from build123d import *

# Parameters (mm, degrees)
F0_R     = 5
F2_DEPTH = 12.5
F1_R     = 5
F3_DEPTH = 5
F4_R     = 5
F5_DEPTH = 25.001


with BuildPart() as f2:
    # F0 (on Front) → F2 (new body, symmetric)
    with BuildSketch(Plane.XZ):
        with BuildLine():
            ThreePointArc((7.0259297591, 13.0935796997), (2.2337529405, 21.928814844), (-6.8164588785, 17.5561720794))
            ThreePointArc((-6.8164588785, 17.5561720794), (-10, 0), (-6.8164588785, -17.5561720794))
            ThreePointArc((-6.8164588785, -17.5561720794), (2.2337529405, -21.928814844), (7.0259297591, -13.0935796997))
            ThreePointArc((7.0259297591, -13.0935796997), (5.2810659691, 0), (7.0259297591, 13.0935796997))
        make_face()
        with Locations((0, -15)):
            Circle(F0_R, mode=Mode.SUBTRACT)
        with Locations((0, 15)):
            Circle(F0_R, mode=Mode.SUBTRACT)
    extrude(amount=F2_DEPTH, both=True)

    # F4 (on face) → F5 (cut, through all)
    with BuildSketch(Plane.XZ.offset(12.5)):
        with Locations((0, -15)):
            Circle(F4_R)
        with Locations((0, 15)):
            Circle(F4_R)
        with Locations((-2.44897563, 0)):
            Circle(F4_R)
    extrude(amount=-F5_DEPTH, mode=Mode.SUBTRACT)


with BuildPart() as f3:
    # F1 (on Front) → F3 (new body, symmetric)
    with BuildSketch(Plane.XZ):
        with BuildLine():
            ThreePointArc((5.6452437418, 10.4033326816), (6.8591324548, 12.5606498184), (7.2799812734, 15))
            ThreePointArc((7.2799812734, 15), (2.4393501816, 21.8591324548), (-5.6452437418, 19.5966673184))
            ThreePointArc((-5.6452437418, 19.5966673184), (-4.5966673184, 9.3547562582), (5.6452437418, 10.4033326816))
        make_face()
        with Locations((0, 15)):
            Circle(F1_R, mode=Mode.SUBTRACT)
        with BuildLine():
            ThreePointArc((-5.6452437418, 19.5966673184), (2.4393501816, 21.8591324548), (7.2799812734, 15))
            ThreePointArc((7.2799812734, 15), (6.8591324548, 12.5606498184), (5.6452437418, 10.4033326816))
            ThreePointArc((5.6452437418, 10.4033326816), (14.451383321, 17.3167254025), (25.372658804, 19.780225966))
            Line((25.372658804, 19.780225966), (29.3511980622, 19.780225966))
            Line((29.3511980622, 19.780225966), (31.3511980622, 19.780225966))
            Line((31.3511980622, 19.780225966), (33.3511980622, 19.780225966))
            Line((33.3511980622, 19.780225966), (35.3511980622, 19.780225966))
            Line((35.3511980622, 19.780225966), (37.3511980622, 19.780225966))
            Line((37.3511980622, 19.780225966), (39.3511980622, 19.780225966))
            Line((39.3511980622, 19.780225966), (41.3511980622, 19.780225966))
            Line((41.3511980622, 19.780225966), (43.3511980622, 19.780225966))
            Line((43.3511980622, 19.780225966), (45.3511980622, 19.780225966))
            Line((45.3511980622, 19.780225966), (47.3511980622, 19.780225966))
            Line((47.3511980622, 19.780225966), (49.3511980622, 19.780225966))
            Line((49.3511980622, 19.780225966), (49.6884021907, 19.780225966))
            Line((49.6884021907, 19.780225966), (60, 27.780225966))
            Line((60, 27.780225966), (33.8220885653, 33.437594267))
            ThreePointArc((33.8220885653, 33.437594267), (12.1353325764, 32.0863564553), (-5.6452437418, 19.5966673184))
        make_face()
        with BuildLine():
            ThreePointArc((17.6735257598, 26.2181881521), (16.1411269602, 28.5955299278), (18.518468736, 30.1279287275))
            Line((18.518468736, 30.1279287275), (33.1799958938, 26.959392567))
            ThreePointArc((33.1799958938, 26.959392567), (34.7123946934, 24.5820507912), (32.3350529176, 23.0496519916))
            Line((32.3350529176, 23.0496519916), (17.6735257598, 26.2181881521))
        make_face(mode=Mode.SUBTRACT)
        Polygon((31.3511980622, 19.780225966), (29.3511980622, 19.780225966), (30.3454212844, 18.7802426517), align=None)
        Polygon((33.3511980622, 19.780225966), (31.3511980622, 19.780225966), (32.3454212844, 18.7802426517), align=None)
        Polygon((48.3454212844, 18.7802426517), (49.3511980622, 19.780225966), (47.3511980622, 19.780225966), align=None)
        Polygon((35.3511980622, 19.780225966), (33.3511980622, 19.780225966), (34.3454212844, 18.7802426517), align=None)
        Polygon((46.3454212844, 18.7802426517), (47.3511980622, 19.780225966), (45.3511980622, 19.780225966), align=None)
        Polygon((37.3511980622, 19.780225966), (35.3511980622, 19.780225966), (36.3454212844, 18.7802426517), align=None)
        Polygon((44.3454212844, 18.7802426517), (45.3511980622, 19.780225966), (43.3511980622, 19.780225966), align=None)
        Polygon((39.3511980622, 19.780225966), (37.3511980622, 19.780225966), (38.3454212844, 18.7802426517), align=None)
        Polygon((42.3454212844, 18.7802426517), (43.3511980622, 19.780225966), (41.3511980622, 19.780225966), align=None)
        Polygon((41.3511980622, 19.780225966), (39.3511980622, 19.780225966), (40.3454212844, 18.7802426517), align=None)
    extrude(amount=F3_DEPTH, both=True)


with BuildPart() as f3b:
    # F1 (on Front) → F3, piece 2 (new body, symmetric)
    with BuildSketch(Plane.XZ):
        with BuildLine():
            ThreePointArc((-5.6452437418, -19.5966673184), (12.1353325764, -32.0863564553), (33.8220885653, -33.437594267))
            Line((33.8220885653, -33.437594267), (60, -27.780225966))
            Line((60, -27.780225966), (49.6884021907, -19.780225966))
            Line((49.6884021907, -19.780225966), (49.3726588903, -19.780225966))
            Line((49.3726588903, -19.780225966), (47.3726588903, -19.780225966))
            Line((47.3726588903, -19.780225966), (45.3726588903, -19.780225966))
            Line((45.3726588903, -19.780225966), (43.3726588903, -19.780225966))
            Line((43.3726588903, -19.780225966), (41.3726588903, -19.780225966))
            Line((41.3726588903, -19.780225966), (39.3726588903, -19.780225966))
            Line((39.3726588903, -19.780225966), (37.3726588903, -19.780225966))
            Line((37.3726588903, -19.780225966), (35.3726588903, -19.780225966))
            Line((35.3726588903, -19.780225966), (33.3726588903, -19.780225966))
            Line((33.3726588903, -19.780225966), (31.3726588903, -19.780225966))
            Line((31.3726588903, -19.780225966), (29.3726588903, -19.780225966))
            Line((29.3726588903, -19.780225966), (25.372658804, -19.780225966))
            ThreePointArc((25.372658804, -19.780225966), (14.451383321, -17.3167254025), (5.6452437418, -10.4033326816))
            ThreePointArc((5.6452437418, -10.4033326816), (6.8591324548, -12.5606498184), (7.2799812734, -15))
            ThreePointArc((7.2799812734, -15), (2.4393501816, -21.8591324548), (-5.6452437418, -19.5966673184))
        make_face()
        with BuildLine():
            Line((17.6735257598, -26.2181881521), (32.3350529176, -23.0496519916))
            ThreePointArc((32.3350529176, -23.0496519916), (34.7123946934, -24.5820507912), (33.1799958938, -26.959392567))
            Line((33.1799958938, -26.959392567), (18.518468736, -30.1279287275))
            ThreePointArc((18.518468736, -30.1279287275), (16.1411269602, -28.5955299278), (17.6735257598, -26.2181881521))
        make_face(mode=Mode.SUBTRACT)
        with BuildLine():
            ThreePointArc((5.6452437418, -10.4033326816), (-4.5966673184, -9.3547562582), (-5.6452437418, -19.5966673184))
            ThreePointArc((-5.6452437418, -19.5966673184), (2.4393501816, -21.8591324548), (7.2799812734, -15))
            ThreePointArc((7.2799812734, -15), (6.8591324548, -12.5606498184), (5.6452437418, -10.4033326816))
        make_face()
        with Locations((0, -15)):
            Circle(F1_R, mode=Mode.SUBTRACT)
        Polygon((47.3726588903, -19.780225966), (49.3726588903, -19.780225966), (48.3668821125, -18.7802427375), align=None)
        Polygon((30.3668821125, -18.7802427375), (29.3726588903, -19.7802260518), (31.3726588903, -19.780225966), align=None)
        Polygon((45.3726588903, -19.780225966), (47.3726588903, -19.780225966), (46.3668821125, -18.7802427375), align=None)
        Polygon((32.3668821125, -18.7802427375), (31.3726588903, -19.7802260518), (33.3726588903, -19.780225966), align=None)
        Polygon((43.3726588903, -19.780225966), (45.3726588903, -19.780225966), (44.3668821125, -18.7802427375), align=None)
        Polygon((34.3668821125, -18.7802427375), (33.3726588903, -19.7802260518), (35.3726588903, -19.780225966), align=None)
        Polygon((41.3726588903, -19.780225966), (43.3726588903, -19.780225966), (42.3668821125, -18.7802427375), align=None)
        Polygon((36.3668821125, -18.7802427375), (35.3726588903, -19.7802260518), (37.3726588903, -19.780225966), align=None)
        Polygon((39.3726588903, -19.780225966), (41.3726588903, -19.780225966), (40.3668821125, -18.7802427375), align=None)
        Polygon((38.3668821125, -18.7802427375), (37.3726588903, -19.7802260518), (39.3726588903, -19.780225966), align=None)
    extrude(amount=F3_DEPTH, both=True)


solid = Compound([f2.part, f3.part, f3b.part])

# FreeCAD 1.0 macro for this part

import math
import FreeCAD as App
import Part
import Sketcher

V = App.Vector
Q = App.Units.Quantity

doc = App.newDocument("Part")
params = doc.addObject("Spreadsheet::Sheet", "Params")
for row, (alias, value) in enumerate([
    ("sketch1_diameter", "10 mm"),
    ("sketch1_radius", "50 mm"),
    ("pad1_length", "25 mm"),
    ("sketch2_diameter", "10 mm"),
    ("sketch3_diameter", "10 mm"),
    ("sketch3_radius", "40 mm"),
    ("sketch3_radius2", "2 mm"),
    ("sketch3_length", "15 mm"),
    ("pad2_length", "10 mm"),
    ("sketch4_diameter", "10 mm"),
    ("sketch4_radius", "40 mm"),
    ("sketch4_radius2", "2 mm"),
    ("sketch4_width", "4 mm"),
    ("sketch4_length", "15 mm"),
    ("pad3_length", "10 mm"),
], start=1):
    params.set(f"A{row}", alias)
    params.set(f"B{row}", "=" + value)
    params.setAlias(f"B{row}", alias)

body = doc.addObject("PartDesign::Body", "Body")

sketch1 = body.newObject("Sketcher::SketchObject", "Sketch")
sketch1.AttachmentSupport = (doc.getObject("XZ_Plane"), [""])
sketch1.MapMode = "FlatFace"
sketch1.addGeometry([
    Part.ArcOfCircle(Part.Circle(V(0, 15, 0), V(0, 0, 1), 7), math.radians(-15), math.radians(159)),
    Part.ArcOfCircle(Part.Circle(V(40, 0, 0), V(0, 0, 1), 50), math.radians(159), math.radians(201)),
    Part.ArcOfCircle(Part.Circle(V(0, -15, 0), V(0, 0, 1), 7), math.radians(-159), math.radians(15)),
    Part.ArcOfCircle(Part.Circle(V(55, 0, 0), V(0, 0, 1), 50), math.radians(165), math.radians(195)),
    Part.Circle(V(0, -15, 0), V(0, 0, 1), 5),
    Part.Circle(V(0, 15, 0), V(0, 0, 1), 5),
], False)
sketch1.addConstraint([
    Sketcher.Constraint("Tangent", 0, 2, 1, 1),
    Sketcher.Constraint("Tangent", 1, 2, 2, 1),
    Sketcher.Constraint("Tangent", 2, 2, 3, 2),
    Sketcher.Constraint("Tangent", 3, 1, 0, 1),
    Sketcher.Constraint("Coincident", 4, 3, 2, 3),
    Sketcher.Constraint("Coincident", 5, 3, 0, 3),
    Sketcher.Constraint("Equal", 0, 2),
    Sketcher.Constraint("Equal", 1, 3),
    Sketcher.Constraint("Equal", 4, 5),
    Sketcher.Constraint("Symmetric", 0, 3, 2, 3, -1, 1),
    Sketcher.Constraint("PointOnObject", 0, 3, -2),
    Sketcher.Constraint("Diameter", 4, Q("10 mm")),
    Sketcher.Constraint("Radius", 1, Q("50 mm")),
    Sketcher.Constraint("DistanceY", -1, 1, 0, 3, Q("15 mm")),
    Sketcher.Constraint("DistanceX", -1, 1, 1, 3, Q("40 mm")),
])
sketch1.setExpression("Constraints[11]", "Params.sketch1_diameter")
sketch1.setExpression("Constraints[12]", "Params.sketch1_radius")
pad1 = body.newObject("PartDesign::Pad", "Pad")
pad1.Profile = sketch1
pad1.setExpression("Length", "Params.pad1_length")
pad1.Midplane = True

sketch2 = body.newObject("Sketcher::SketchObject", "Sketch001")
sketch2.AttachmentSupport = (doc.getObject("XZ_Plane"), [""])
sketch2.MapMode = "FlatFace"
sketch2.AttachmentOffset = App.Placement(V(0, 0, 12.5), App.Rotation())
sketch2.addGeometry([
    Part.Circle(V(0, -15, 0), V(0, 0, 1), 5),
    Part.Circle(V(0, 15, 0), V(0, 0, 1), 5),
    Part.Circle(V(-2, 0, 0), V(0, 0, 1), 5),
], False)
sketch2.addConstraint([
    Sketcher.Constraint("Equal", 0, 1),
    Sketcher.Constraint("Equal", 1, 2),
    Sketcher.Constraint("Symmetric", 0, 3, 1, 3, -1, 1),
    Sketcher.Constraint("PointOnObject", 0, 3, -2),
    Sketcher.Constraint("PointOnObject", 2, 3, -1),
    Sketcher.Constraint("Diameter", 0, Q("10 mm")),
    Sketcher.Constraint("DistanceY", 0, 3, -1, 1, Q("15 mm")),
    Sketcher.Constraint("DistanceX", 2, 3, -1, 1, Q("2.448976 mm")),
])
sketch2.setExpression("Constraints[5]", "Params.sketch2_diameter")
pocket1 = body.newObject("PartDesign::Pocket", "Pocket")
pocket1.Profile = sketch2
pocket1.Type = "ThroughAll"
body2 = doc.addObject("PartDesign::Body", "Body001")

sketch3 = body2.newObject("Sketcher::SketchObject", "Sketch002")
sketch3.AttachmentSupport = (doc.getObject("XZ_Plane001"), [""])
sketch3.MapMode = "FlatFace"
sketch3.addGeometry([
    Part.ArcOfCircle(Part.Circle(V(0, 15, 0), V(0, 0, 1), 7.28), math.radians(141), math.radians(321)),
    Part.ArcOfCircle(Part.Circle(V(25.37, -5.66, 0), V(0, 0, 1), 25.44), math.radians(90), math.radians(141)),
    Part.LineSegment(V(25.37, 19.78, 0), V(29.35, 19.78, 0)),
    Part.LineSegment(V(29.35, 19.78, 0), V(30.35, 18.78, 0)),
    Part.LineSegment(V(30.35, 18.78, 0), V(31.35, 19.78, 0)),
    Part.LineSegment(V(31.35, 19.78, 0), V(32.35, 18.78, 0)),
    Part.LineSegment(V(32.35, 18.78, 0), V(33.35, 19.78, 0)),
    Part.LineSegment(V(33.35, 19.78, 0), V(34.35, 18.78, 0)),
    Part.LineSegment(V(34.35, 18.78, 0), V(35.35, 19.78, 0)),
    Part.LineSegment(V(35.35, 19.78, 0), V(36.35, 18.78, 0)),
    Part.LineSegment(V(36.35, 18.78, 0), V(37.35, 19.78, 0)),
    Part.LineSegment(V(37.35, 19.78, 0), V(38.35, 18.78, 0)),
    Part.LineSegment(V(38.35, 18.78, 0), V(39.35, 19.78, 0)),
    Part.LineSegment(V(39.35, 19.78, 0), V(40.35, 18.78, 0)),
    Part.LineSegment(V(40.35, 18.78, 0), V(41.35, 19.78, 0)),
    Part.LineSegment(V(41.35, 19.78, 0), V(42.35, 18.78, 0)),
    Part.LineSegment(V(42.35, 18.78, 0), V(43.35, 19.78, 0)),
    Part.LineSegment(V(43.35, 19.78, 0), V(44.35, 18.78, 0)),
    Part.LineSegment(V(44.35, 18.78, 0), V(45.35, 19.78, 0)),
    Part.LineSegment(V(45.35, 19.78, 0), V(46.35, 18.78, 0)),
    Part.LineSegment(V(46.35, 18.78, 0), V(47.35, 19.78, 0)),
    Part.LineSegment(V(47.35, 19.78, 0), V(48.35, 18.78, 0)),
    Part.LineSegment(V(48.35, 18.78, 0), V(49.35, 19.78, 0)),
    Part.LineSegment(V(49.35, 19.78, 0), V(49.69, 19.78, 0)),
    Part.LineSegment(V(49.69, 19.78, 0), V(60, 27.78, 0)),
    Part.LineSegment(V(60, 27.78, 0), V(33.82, 33.44, 0)),
    Part.ArcOfCircle(Part.Circle(V(25.37, -5.66, 0), V(0, 0, 1), 40), math.radians(78), math.radians(141)),
    Part.Circle(V(0, 15, 0), V(0, 0, 1), 5),
    Part.LineSegment(V(32.34, 23.05, 0), V(17.67, 26.22, 0)),
    Part.ArcOfCircle(Part.Circle(V(18.1, 28.17, 0), V(0, 0, 1), 2), math.radians(78), math.radians(258)),
    Part.LineSegment(V(18.52, 30.13, 0), V(33.18, 26.96, 0)),
    Part.ArcOfCircle(Part.Circle(V(32.76, 25, 0), V(0, 0, 1), 2), math.radians(-102), math.radians(78)),
], False)
sketch3.addConstraint([
    Sketcher.Constraint("Tangent", 0, 2, 1, 2),
    Sketcher.Constraint("Tangent", 1, 1, 2, 1),
    Sketcher.Constraint("Coincident", 2, 2, 3, 1),
    Sketcher.Constraint("Coincident", 3, 2, 4, 1),
    Sketcher.Constraint("Coincident", 4, 2, 5, 1),
    Sketcher.Constraint("Coincident", 5, 2, 6, 1),
    Sketcher.Constraint("Coincident", 6, 2, 7, 1),
    Sketcher.Constraint("Coincident", 7, 2, 8, 1),
    Sketcher.Constraint("Coincident", 8, 2, 9, 1),
    Sketcher.Constraint("Coincident", 9, 2, 10, 1),
    Sketcher.Constraint("Coincident", 10, 2, 11, 1),
    Sketcher.Constraint("Coincident", 11, 2, 12, 1),
    Sketcher.Constraint("Coincident", 12, 2, 13, 1),
    Sketcher.Constraint("Coincident", 13, 2, 14, 1),
    Sketcher.Constraint("Coincident", 14, 2, 15, 1),
    Sketcher.Constraint("Coincident", 15, 2, 16, 1),
    Sketcher.Constraint("Coincident", 16, 2, 17, 1),
    Sketcher.Constraint("Coincident", 17, 2, 18, 1),
    Sketcher.Constraint("Coincident", 18, 2, 19, 1),
    Sketcher.Constraint("Coincident", 19, 2, 20, 1),
    Sketcher.Constraint("Coincident", 20, 2, 21, 1),
    Sketcher.Constraint("Coincident", 21, 2, 22, 1),
    Sketcher.Constraint("Coincident", 22, 2, 23, 1),
    Sketcher.Constraint("Coincident", 23, 2, 24, 1),
    Sketcher.Constraint("Coincident", 24, 2, 25, 1),
    Sketcher.Constraint("Tangent", 25, 2, 26, 1),
    Sketcher.Constraint("Tangent", 26, 2, 0, 1),
    Sketcher.Constraint("Tangent", 28, 2, 29, 2),
    Sketcher.Constraint("Tangent", 29, 1, 30, 1),
    Sketcher.Constraint("Tangent", 30, 2, 31, 2),
    Sketcher.Constraint("Tangent", 31, 1, 28, 1),
    Sketcher.Constraint("Horizontal", 2),
    Sketcher.Constraint("Horizontal", 23),
    Sketcher.Constraint("Coincident", 26, 3, 1, 3),
    Sketcher.Constraint("Coincident", 27, 3, 0, 3),
    Sketcher.Constraint("Equal", 29, 31),
    Sketcher.Constraint("PointOnObject", 0, 3, -2),
    Sketcher.Constraint("Perpendicular", 3, 4),
    Sketcher.Constraint("Perpendicular", 4, 5),
    Sketcher.Constraint("Perpendicular", 5, 6),
    Sketcher.Constraint("Perpendicular", 6, 7),
    Sketcher.Constraint("Perpendicular", 7, 8),
    Sketcher.Constraint("Perpendicular", 8, 9),
    Sketcher.Constraint("Perpendicular", 9, 10),
    Sketcher.Constraint("Perpendicular", 10, 11),
    Sketcher.Constraint("Perpendicular", 11, 12),
    Sketcher.Constraint("Perpendicular", 12, 13),
    Sketcher.Constraint("Perpendicular", 13, 14),
    Sketcher.Constraint("Perpendicular", 14, 15),
    Sketcher.Constraint("Perpendicular", 15, 16),
    Sketcher.Constraint("Perpendicular", 16, 17),
    Sketcher.Constraint("Perpendicular", 17, 18),
    Sketcher.Constraint("Perpendicular", 18, 19),
    Sketcher.Constraint("Perpendicular", 19, 20),
    Sketcher.Constraint("Perpendicular", 20, 21),
    Sketcher.Constraint("Perpendicular", 21, 22),
    Sketcher.Constraint("Parallel", 25, 28),
    Sketcher.Constraint("Horizontal", 2, 2, 4, 2),
    Sketcher.Constraint("Horizontal", 3, 2, 5, 2),
    Sketcher.Constraint("Horizontal", 4, 2, 6, 2),
    Sketcher.Constraint("Horizontal", 5, 2, 7, 2),
    Sketcher.Constraint("Horizontal", 6, 2, 8, 2),
    Sketcher.Constraint("Horizontal", 7, 2, 9, 2),
    Sketcher.Constraint("Horizontal", 8, 2, 10, 2),
    Sketcher.Constraint("Horizontal", 9, 2, 11, 2),
    Sketcher.Constraint("Horizontal", 10, 2, 12, 2),
    Sketcher.Constraint("Horizontal", 11, 2, 13, 2),
    Sketcher.Constraint("Horizontal", 12, 2, 14, 2),
    Sketcher.Constraint("Horizontal", 13, 2, 15, 2),
    Sketcher.Constraint("Horizontal", 14, 2, 16, 2),
    Sketcher.Constraint("Horizontal", 15, 2, 17, 2),
    Sketcher.Constraint("Horizontal", 16, 2, 18, 2),
    Sketcher.Constraint("Horizontal", 17, 2, 19, 2),
    Sketcher.Constraint("Horizontal", 18, 2, 20, 2),
    Sketcher.Constraint("Horizontal", 19, 2, 21, 2),
    Sketcher.Constraint("Horizontal", 20, 2, 22, 2),
    Sketcher.Constraint("Diameter", 27, Q("10 mm")),
    Sketcher.Constraint("Radius", 26, Q("40 mm")),
    Sketcher.Constraint("Radius", 29, Q("2 mm")),
    Sketcher.Constraint("Distance", 28, Q("15 mm")),
    Sketcher.Constraint("DistanceY", -1, 1, 0, 3, Q("15 mm")),
    Sketcher.Constraint("DistanceX", -1, 1, 24, 2, Q("60 mm")),
    Sketcher.Constraint("DistanceX", 2, 2, 4, 2, Q("2 mm")),
    Sketcher.Constraint("DistanceY", 23, 2, 24, 2, Q("8 mm")),
    Sketcher.Constraint("Radius", 0, Q("7.279981 mm")),
    Sketcher.Constraint("DistanceX", 2, 1, 2, 2, Q("3.978539 mm")),
    Sketcher.Constraint("DistanceX", -1, 1, 2, 2, Q("29.351198 mm")),
    Sketcher.Constraint("DistanceX", 29, 3, 2, 2, Q("11.255201 mm")),
    Sketcher.Constraint("DistanceY", 30, 2, 25, 2, Q("6.478202 mm")),
    Sketcher.Constraint("DistanceX", 23, 1, 23, 2, Q("0.337204 mm")),
    Sketcher.Constraint("DistanceX", -1, 1, 3, 2, Q("30.345421 mm")),
])
sketch3.setExpression("Constraints[76]", "Params.sketch3_diameter")
sketch3.setExpression("Constraints[77]", "Params.sketch3_radius")
sketch3.setExpression("Constraints[78]", "Params.sketch3_radius2")
sketch3.setExpression("Constraints[79]", "Params.sketch3_length")
pad2 = body2.newObject("PartDesign::Pad", "Pad001")
pad2.Profile = sketch3
pad2.setExpression("Length", "Params.pad2_length")
pad2.Midplane = True
body3 = doc.addObject("PartDesign::Body", "Body002")

sketch4 = body3.newObject("Sketcher::SketchObject", "Sketch003")
sketch4.AttachmentSupport = (doc.getObject("XZ_Plane002"), [""])
sketch4.MapMode = "FlatFace"
sketch4.addGeometry([
    Part.ArcOfCircle(Part.Circle(V(25.37, 5.66, 0), V(0, 0, 1), 40), math.radians(-141), math.radians(-78)),
    Part.LineSegment(V(33.82, -33.44, 0), V(60, -27.78, 0)),
    Part.LineSegment(V(60, -27.78, 0), V(49.69, -19.78, 0)),
    Part.LineSegment(V(49.69, -19.78, 0), V(49.37, -19.78, 0)),
    Part.LineSegment(V(49.37, -19.78, 0), V(48.37, -18.78, 0)),
    Part.LineSegment(V(48.37, -18.78, 0), V(47.37, -19.78, 0)),
    Part.LineSegment(V(47.37, -19.78, 0), V(46.37, -18.78, 0)),
    Part.LineSegment(V(46.37, -18.78, 0), V(45.37, -19.78, 0)),
    Part.LineSegment(V(45.37, -19.78, 0), V(44.37, -18.78, 0)),
    Part.LineSegment(V(44.37, -18.78, 0), V(43.37, -19.78, 0)),
    Part.LineSegment(V(43.37, -19.78, 0), V(42.37, -18.78, 0)),
    Part.LineSegment(V(42.37, -18.78, 0), V(41.37, -19.78, 0)),
    Part.LineSegment(V(41.37, -19.78, 0), V(40.37, -18.78, 0)),
    Part.LineSegment(V(40.37, -18.78, 0), V(39.37, -19.78, 0)),
    Part.LineSegment(V(39.37, -19.78, 0), V(38.37, -18.78, 0)),
    Part.LineSegment(V(38.37, -18.78, 0), V(37.37, -19.78, 0)),
    Part.LineSegment(V(37.37, -19.78, 0), V(36.37, -18.78, 0)),
    Part.LineSegment(V(36.37, -18.78, 0), V(35.37, -19.78, 0)),
    Part.LineSegment(V(35.37, -19.78, 0), V(34.37, -18.78, 0)),
    Part.LineSegment(V(34.37, -18.78, 0), V(33.37, -19.78, 0)),
    Part.LineSegment(V(33.37, -19.78, 0), V(32.37, -18.78, 0)),
    Part.LineSegment(V(32.37, -18.78, 0), V(31.37, -19.78, 0)),
    Part.LineSegment(V(31.37, -19.78, 0), V(30.37, -18.78, 0)),
    Part.LineSegment(V(30.37, -18.78, 0), V(29.37, -19.78, 0)),
    Part.LineSegment(V(29.37, -19.78, 0), V(25.37, -19.78, 0)),
    Part.ArcOfCircle(Part.Circle(V(25.37, 5.66, 0), V(0, 0, 1), 25.44), math.radians(-141), math.radians(-90)),
    Part.ArcOfCircle(Part.Circle(V(0, -15, 0), V(0, 0, 1), 7.28), math.radians(39), math.radians(219)),
    Part.ArcOfCircle(Part.Circle(V(18.1, -28.17, 0), V(0, 0, 1), 2), math.radians(102), math.radians(282)),
    Part.LineSegment(V(17.67, -26.22, 0), V(32.34, -23.05, 0)),
    Part.ArcOfCircle(Part.Circle(V(32.76, -25, 0), V(0, 0, 1), 2), math.radians(-78), math.radians(102)),
    Part.LineSegment(V(33.18, -26.96, 0), V(18.52, -30.13, 0)),
    Part.Circle(V(0, -15, 0), V(0, 0, 1), 5),
], False)
sketch4.addConstraint([
    Sketcher.Constraint("Tangent", 0, 2, 1, 1),
    Sketcher.Constraint("Coincident", 1, 2, 2, 1),
    Sketcher.Constraint("Coincident", 2, 2, 3, 1),
    Sketcher.Constraint("Coincident", 3, 2, 4, 1),
    Sketcher.Constraint("Coincident", 4, 2, 5, 1),
    Sketcher.Constraint("Coincident", 5, 2, 6, 1),
    Sketcher.Constraint("Coincident", 6, 2, 7, 1),
    Sketcher.Constraint("Coincident", 7, 2, 8, 1),
    Sketcher.Constraint("Coincident", 8, 2, 9, 1),
    Sketcher.Constraint("Coincident", 9, 2, 10, 1),
    Sketcher.Constraint("Coincident", 10, 2, 11, 1),
    Sketcher.Constraint("Coincident", 11, 2, 12, 1),
    Sketcher.Constraint("Coincident", 12, 2, 13, 1),
    Sketcher.Constraint("Coincident", 13, 2, 14, 1),
    Sketcher.Constraint("Coincident", 14, 2, 15, 1),
    Sketcher.Constraint("Coincident", 15, 2, 16, 1),
    Sketcher.Constraint("Coincident", 16, 2, 17, 1),
    Sketcher.Constraint("Coincident", 17, 2, 18, 1),
    Sketcher.Constraint("Coincident", 18, 2, 19, 1),
    Sketcher.Constraint("Coincident", 19, 2, 20, 1),
    Sketcher.Constraint("Coincident", 20, 2, 21, 1),
    Sketcher.Constraint("Coincident", 21, 2, 22, 1),
    Sketcher.Constraint("Coincident", 22, 2, 23, 1),
    Sketcher.Constraint("Coincident", 23, 2, 24, 1),
    Sketcher.Constraint("Tangent", 24, 2, 25, 2),
    Sketcher.Constraint("Tangent", 25, 1, 26, 1),
    Sketcher.Constraint("Tangent", 26, 2, 0, 1),
    Sketcher.Constraint("Tangent", 27, 1, 28, 1),
    Sketcher.Constraint("Tangent", 28, 2, 29, 2),
    Sketcher.Constraint("Tangent", 29, 1, 30, 1),
    Sketcher.Constraint("Tangent", 30, 2, 27, 2),
    Sketcher.Constraint("Horizontal", 3),
    Sketcher.Constraint("Horizontal", 24),
    Sketcher.Constraint("Coincident", 25, 3, 0, 3),
    Sketcher.Constraint("Coincident", 31, 3, 26, 3),
    Sketcher.Constraint("Equal", 27, 29),
    Sketcher.Constraint("PointOnObject", 26, 3, -2),
    Sketcher.Constraint("Perpendicular", 4, 5),
    Sketcher.Constraint("Perpendicular", 5, 6),
    Sketcher.Constraint("Perpendicular", 6, 7),
    Sketcher.Constraint("Perpendicular", 7, 8),
    Sketcher.Constraint("Perpendicular", 8, 9),
    Sketcher.Constraint("Perpendicular", 9, 10),
    Sketcher.Constraint("Perpendicular", 10, 11),
    Sketcher.Constraint("Perpendicular", 11, 12),
    Sketcher.Constraint("Perpendicular", 12, 13),
    Sketcher.Constraint("Perpendicular", 13, 14),
    Sketcher.Constraint("Perpendicular", 14, 15),
    Sketcher.Constraint("Perpendicular", 15, 16),
    Sketcher.Constraint("Perpendicular", 16, 17),
    Sketcher.Constraint("Perpendicular", 17, 18),
    Sketcher.Constraint("Perpendicular", 18, 19),
    Sketcher.Constraint("Perpendicular", 19, 20),
    Sketcher.Constraint("Perpendicular", 20, 21),
    Sketcher.Constraint("Perpendicular", 21, 22),
    Sketcher.Constraint("Perpendicular", 22, 23),
    Sketcher.Constraint("Parallel", 1, 28),
    Sketcher.Constraint("Horizontal", 3, 2, 5, 2),
    Sketcher.Constraint("Horizontal", 4, 2, 6, 2),
    Sketcher.Constraint("Horizontal", 5, 2, 7, 2),
    Sketcher.Constraint("Horizontal", 6, 2, 8, 2),
    Sketcher.Constraint("Horizontal", 7, 2, 9, 2),
    Sketcher.Constraint("Horizontal", 8, 2, 10, 2),
    Sketcher.Constraint("Horizontal", 9, 2, 11, 2),
    Sketcher.Constraint("Horizontal", 10, 2, 12, 2),
    Sketcher.Constraint("Horizontal", 11, 2, 13, 2),
    Sketcher.Constraint("Horizontal", 12, 2, 14, 2),
    Sketcher.Constraint("Horizontal", 13, 2, 15, 2),
    Sketcher.Constraint("Horizontal", 14, 2, 16, 2),
    Sketcher.Constraint("Horizontal", 15, 2, 17, 2),
    Sketcher.Constraint("Horizontal", 16, 2, 18, 2),
    Sketcher.Constraint("Horizontal", 17, 2, 19, 2),
    Sketcher.Constraint("Horizontal", 18, 2, 20, 2),
    Sketcher.Constraint("Horizontal", 19, 2, 21, 2),
    Sketcher.Constraint("Horizontal", 20, 2, 22, 2),
    Sketcher.Constraint("Horizontal", 21, 2, 23, 2),
    Sketcher.Constraint("Diameter", 31, Q("10 mm")),
    Sketcher.Constraint("Radius", 0, Q("40 mm")),
    Sketcher.Constraint("Radius", 27, Q("2 mm")),
    Sketcher.Constraint("DistanceX", 24, 2, 24, 1, Q("4 mm")),
    Sketcher.Constraint("Distance", 28, Q("15 mm")),
    Sketcher.Constraint("DistanceY", 26, 3, -1, 1, Q("15 mm")),
    Sketcher.Constraint("DistanceX", -1, 1, 1, 2, Q("60 mm")),
    Sketcher.Constraint("DistanceY", 1, 2, 2, 2, Q("8 mm")),
    Sketcher.Constraint("DistanceX", 5, 2, 3, 2, Q("2 mm")),
    Sketcher.Constraint("Radius", 26, Q("7.279981 mm")),
    Sketcher.Constraint("DistanceY", 0, 2, 29, 1, Q("6.478202 mm")),
    Sketcher.Constraint("Distance", 1, Q("26.782249 mm")),
    Sketcher.Constraint("DistanceX", 3, 2, 3, 1, Q("0.315743 mm")),
    Sketcher.Constraint("DistanceX", -1, 1, 30, 2, Q("18.518469 mm")),
    Sketcher.Constraint("DistanceX", 4, 2, 2, 2, Q("1.32152 mm")),
])
sketch4.setExpression("Constraints[76]", "Params.sketch4_diameter")
sketch4.setExpression("Constraints[77]", "Params.sketch4_radius")
sketch4.setExpression("Constraints[78]", "Params.sketch4_radius2")
sketch4.setExpression("Constraints[79]", "Params.sketch4_width")
sketch4.setExpression("Constraints[80]", "Params.sketch4_length")
pad3 = body3.newObject("PartDesign::Pad", "Pad002")
pad3.Profile = sketch4
pad3.setExpression("Length", "Params.pad3_length")
pad3.Midplane = True

doc.recompute()
